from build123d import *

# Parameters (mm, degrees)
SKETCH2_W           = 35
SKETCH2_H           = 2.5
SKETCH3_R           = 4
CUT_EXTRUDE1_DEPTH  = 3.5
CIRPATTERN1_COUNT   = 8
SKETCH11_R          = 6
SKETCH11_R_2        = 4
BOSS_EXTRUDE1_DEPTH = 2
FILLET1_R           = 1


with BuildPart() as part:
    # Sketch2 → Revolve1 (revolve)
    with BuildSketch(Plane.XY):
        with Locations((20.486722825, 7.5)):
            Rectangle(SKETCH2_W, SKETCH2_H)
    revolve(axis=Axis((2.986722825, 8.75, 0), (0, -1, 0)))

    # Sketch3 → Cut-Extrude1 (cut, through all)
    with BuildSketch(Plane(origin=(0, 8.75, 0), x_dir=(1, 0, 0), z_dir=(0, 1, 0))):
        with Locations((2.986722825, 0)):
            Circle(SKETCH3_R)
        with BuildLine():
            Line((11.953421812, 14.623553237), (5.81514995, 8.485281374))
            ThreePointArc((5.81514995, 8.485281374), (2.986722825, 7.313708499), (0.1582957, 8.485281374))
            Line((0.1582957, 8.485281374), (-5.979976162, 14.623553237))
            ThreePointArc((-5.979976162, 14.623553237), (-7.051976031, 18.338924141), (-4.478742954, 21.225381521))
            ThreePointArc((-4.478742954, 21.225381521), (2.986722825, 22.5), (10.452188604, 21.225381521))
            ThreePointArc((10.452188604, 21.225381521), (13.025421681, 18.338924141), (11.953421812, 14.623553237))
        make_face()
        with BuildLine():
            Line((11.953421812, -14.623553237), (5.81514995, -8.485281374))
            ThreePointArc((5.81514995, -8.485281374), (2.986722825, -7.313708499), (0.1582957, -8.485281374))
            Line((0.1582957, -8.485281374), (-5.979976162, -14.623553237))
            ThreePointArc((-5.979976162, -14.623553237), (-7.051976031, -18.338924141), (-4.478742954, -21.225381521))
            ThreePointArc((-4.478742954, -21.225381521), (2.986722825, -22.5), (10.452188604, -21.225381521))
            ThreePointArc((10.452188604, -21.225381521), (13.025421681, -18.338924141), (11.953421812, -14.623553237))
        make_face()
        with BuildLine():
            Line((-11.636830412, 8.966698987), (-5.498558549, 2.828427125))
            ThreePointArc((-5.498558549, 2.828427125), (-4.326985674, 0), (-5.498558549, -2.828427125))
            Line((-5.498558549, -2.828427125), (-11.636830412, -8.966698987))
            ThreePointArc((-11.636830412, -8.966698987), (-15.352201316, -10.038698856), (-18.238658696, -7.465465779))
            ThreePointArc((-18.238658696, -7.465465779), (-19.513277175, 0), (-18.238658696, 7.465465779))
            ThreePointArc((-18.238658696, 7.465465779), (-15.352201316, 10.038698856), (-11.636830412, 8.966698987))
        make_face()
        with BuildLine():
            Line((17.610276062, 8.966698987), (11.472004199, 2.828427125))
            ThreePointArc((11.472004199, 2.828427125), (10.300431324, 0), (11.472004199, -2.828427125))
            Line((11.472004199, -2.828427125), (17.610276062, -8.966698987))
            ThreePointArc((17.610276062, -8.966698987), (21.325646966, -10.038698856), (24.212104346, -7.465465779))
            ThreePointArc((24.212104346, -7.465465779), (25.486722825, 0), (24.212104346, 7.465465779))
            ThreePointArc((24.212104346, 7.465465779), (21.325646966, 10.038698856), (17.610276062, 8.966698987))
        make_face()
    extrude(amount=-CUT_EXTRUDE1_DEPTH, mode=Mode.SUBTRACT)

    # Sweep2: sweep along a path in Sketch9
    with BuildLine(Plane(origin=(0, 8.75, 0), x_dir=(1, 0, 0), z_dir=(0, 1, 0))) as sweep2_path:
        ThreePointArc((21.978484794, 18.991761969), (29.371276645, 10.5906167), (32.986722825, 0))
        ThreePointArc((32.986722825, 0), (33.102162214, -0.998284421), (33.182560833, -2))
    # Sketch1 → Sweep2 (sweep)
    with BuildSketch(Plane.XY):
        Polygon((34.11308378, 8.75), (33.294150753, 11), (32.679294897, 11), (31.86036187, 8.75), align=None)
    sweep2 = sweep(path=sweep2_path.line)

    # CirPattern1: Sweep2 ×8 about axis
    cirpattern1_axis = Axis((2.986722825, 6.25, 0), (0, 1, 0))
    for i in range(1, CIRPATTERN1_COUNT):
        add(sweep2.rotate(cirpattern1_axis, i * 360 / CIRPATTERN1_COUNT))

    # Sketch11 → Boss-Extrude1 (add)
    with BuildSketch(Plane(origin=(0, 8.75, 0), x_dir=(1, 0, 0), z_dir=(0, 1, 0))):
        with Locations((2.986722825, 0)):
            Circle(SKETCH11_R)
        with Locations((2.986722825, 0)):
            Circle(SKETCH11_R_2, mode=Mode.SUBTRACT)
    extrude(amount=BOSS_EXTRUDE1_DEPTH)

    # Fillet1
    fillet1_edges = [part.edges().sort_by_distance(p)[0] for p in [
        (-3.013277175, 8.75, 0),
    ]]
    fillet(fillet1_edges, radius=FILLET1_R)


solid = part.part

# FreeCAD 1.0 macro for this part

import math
import FreeCAD as App
import Part
import Sketcher
Q = App.Units.Quantity


def edges_at(feature, points):
    """Names of the edges that pass closest to the given points."""
    edges = feature.Shape.Edges
    near = lambda p: min(range(len(edges)), key=lambda i: edges[i].distToShape(Part.Vertex(*p))[0])
    return sorted({f"Edge{near(p) + 1}" for p in points})


def add_polygon(sketch, points):
    """Adds a closed chain of lines whose ends are joined by coincident constraints."""
    first, n = sketch.GeometryCount, len(points)
    for a, b in zip(points, points[1:] + points[:1]):
        sketch.addGeometry(Part.LineSegment(App.Vector(*a, 0), App.Vector(*b, 0)), False)
    for i in range(n):
        sketch.addConstraint(Sketcher.Constraint("Coincident", first + i, 2, first + (i + 1) % n, 1))

doc = App.newDocument("Part")
body = doc.addObject("PartDesign::Body", "Body")

# Sketch on XY plane
sketch1 = body.newObject("Sketcher::SketchObject", "Sketch")
sketch1.AttachmentSupport = (doc.getObject("XY_Plane"), [""])
sketch1.MapMode = "FlatFace"
add_polygon(sketch1, [(3, 8.8), (3, 6.2), (38, 6.2), (38, 8.8)])  # lines 0-3
sketch1.addGeometry(Part.LineSegment(App.Vector(3, 8.8, 0), App.Vector(3, 6.2, 0)), True)  # axis
sketch1.addConstraint(Sketcher.Constraint("Vertical", 0))
sketch1.addConstraint(Sketcher.Constraint("Horizontal", 1))
sketch1.addConstraint(Sketcher.Constraint("Vertical", 2))
sketch1.addConstraint(Sketcher.Constraint("Horizontal", 3))
sketch1.addConstraint(Sketcher.Constraint("Vertical", 4))
sketch1.addConstraint(Sketcher.Constraint("Coincident", 4, 1, 3, 2))
sketch1.addConstraint(Sketcher.Constraint("Horizontal", 1, 2, 4, 2))
sketch1.addConstraint(Sketcher.Constraint("DistanceX", 1, 1, 1, 2, Q("35 mm")))
sketch1.addConstraint(Sketcher.Constraint("DistanceY", 0, 2, 0, 1, Q("2.5 mm")))
sketch1.addConstraint(Sketcher.Constraint("DistanceY", -1, 1, 0, 2, Q("6.25 mm")))
sketch1.addConstraint(Sketcher.Constraint("DistanceX", -1, 1, 0, 2, Q("2.986723 mm")))
revolution = body.newObject("PartDesign::Revolution", "Revolution")
revolution.Profile = sketch1
revolution.ReferenceAxis = (sketch1, ["Axis0"])
revolution.Angle = 360

# Sketch on XZ plane
sketch2 = body.newObject("Sketcher::SketchObject", "Sketch001")
sketch2.AttachmentSupport = (doc.getObject("XZ_Plane"), [""])
sketch2.MapMode = "FlatFace"
sketch2.AttachmentOffset = App.Placement(App.Vector(0, 0, -8.75), App.Rotation())
sketch2.addGeometry(Part.Circle(App.Vector(3, 0, 0), App.Vector(0, 0, 1), 4), False)
sketch2.addGeometry(Part.LineSegment(App.Vector(5.8, -8.5, 0), App.Vector(12, -14.6, 0)), False)
sketch2.addGeometry(Part.ArcOfCircle(Part.Circle(App.Vector(9.1, -17.5, 0), App.Vector(0, 0, 1), 4), math.radians(-71), math.radians(45)), False)
sketch2.addGeometry(Part.ArcOfCircle(Part.Circle(App.Vector(3, 0, 0), App.Vector(0, 0, 1), 22.5), math.radians(-109), math.radians(-71)), False)
sketch2.addGeometry(Part.ArcOfCircle(Part.Circle(App.Vector(-3.2, -17.5, 0), App.Vector(0, 0, 1), 4), math.radians(135), math.radians(251)), False)
sketch2.addGeometry(Part.LineSegment(App.Vector(-6, -14.6, 0), App.Vector(0.2, -8.5, 0)), False)
sketch2.addGeometry(Part.ArcOfCircle(Part.Circle(App.Vector(3, -11.3, 0), App.Vector(0, 0, 1), 4), math.radians(45), math.radians(135)), False)
sketch2.addGeometry(Part.LineSegment(App.Vector(12, 14.6, 0), App.Vector(5.8, 8.5, 0)), False)
sketch2.addGeometry(Part.ArcOfCircle(Part.Circle(App.Vector(3, 11.3, 0), App.Vector(0, 0, 1), 4), math.radians(-135), math.radians(-45)), False)
sketch2.addGeometry(Part.LineSegment(App.Vector(0.2, 8.5, 0), App.Vector(-6, 14.6, 0)), False)
sketch2.addGeometry(Part.ArcOfCircle(Part.Circle(App.Vector(-3.2, 17.5, 0), App.Vector(0, 0, 1), 4), math.radians(109), math.radians(225)), False)
sketch2.addGeometry(Part.ArcOfCircle(Part.Circle(App.Vector(3, 0, 0), App.Vector(0, 0, 1), 22.5), math.radians(71), math.radians(109)), False)
sketch2.addGeometry(Part.ArcOfCircle(Part.Circle(App.Vector(9.1, 17.5, 0), App.Vector(0, 0, 1), 4), math.radians(-45), math.radians(71)), False)
sketch2.addGeometry(Part.LineSegment(App.Vector(-5.5, -2.8, 0), App.Vector(-11.6, -9, 0)), False)
sketch2.addGeometry(Part.ArcOfCircle(Part.Circle(App.Vector(-14.5, -6.1, 0), App.Vector(0, 0, 1), 4), math.radians(-161), math.radians(-45)), False)
sketch2.addGeometry(Part.ArcOfCircle(Part.Circle(App.Vector(3, 0, 0), App.Vector(0, 0, 1), 22.5), math.radians(161), math.radians(199)), False)
sketch2.addGeometry(Part.ArcOfCircle(Part.Circle(App.Vector(-14.5, 6.1, 0), App.Vector(0, 0, 1), 4), math.radians(45), math.radians(161)), False)
sketch2.addGeometry(Part.LineSegment(App.Vector(-11.6, 9, 0), App.Vector(-5.5, 2.8, 0)), False)
sketch2.addGeometry(Part.ArcOfCircle(Part.Circle(App.Vector(-8.3, 0, 0), App.Vector(0, 0, 1), 4), math.radians(-45), math.radians(45)), False)
sketch2.addGeometry(Part.LineSegment(App.Vector(17.6, -9, 0), App.Vector(11.5, -2.8, 0)), False)
sketch2.addGeometry(Part.ArcOfCircle(Part.Circle(App.Vector(14.3, 0, 0), App.Vector(0, 0, 1), 4), math.radians(135), math.radians(225)), False)
sketch2.addGeometry(Part.LineSegment(App.Vector(11.5, 2.8, 0), App.Vector(17.6, 9, 0)), False)
sketch2.addGeometry(Part.ArcOfCircle(Part.Circle(App.Vector(20.4, 6.1, 0), App.Vector(0, 0, 1), 4), math.radians(19), math.radians(135)), False)
sketch2.addGeometry(Part.ArcOfCircle(Part.Circle(App.Vector(3, 0, 0), App.Vector(0, 0, 1), 22.5), math.radians(-19), math.radians(19)), False)
sketch2.addGeometry(Part.ArcOfCircle(Part.Circle(App.Vector(20.4, -6.1, 0), App.Vector(0, 0, 1), 4), math.radians(-135), math.radians(-19)), False)
sketch2.addConstraint(Sketcher.Constraint("Tangent", 1, 2, 2, 2))
sketch2.addConstraint(Sketcher.Constraint("Tangent", 2, 1, 3, 2))
sketch2.addConstraint(Sketcher.Constraint("Tangent", 3, 1, 4, 2))
sketch2.addConstraint(Sketcher.Constraint("Tangent", 4, 1, 5, 1))
sketch2.addConstraint(Sketcher.Constraint("Tangent", 5, 2, 6, 2))
sketch2.addConstraint(Sketcher.Constraint("Tangent", 6, 1, 1, 1))
sketch2.addConstraint(Sketcher.Constraint("Tangent", 7, 2, 8, 2))
sketch2.addConstraint(Sketcher.Constraint("Tangent", 8, 1, 9, 1))
sketch2.addConstraint(Sketcher.Constraint("Tangent", 9, 2, 10, 2))
sketch2.addConstraint(Sketcher.Constraint("Tangent", 10, 1, 11, 2))
sketch2.addConstraint(Sketcher.Constraint("Tangent", 11, 1, 12, 2))
sketch2.addConstraint(Sketcher.Constraint("Tangent", 12, 1, 7, 1))
sketch2.addConstraint(Sketcher.Constraint("Tangent", 13, 2, 14, 2))
sketch2.addConstraint(Sketcher.Constraint("Tangent", 14, 1, 15, 2))
sketch2.addConstraint(Sketcher.Constraint("Tangent", 15, 1, 16, 2))
sketch2.addConstraint(Sketcher.Constraint("Tangent", 16, 1, 17, 1))
sketch2.addConstraint(Sketcher.Constraint("Tangent", 17, 2, 18, 2))
sketch2.addConstraint(Sketcher.Constraint("Tangent", 18, 1, 13, 1))
sketch2.addConstraint(Sketcher.Constraint("Tangent", 19, 2, 20, 2))
sketch2.addConstraint(Sketcher.Constraint("Tangent", 20, 1, 21, 1))
sketch2.addConstraint(Sketcher.Constraint("Tangent", 21, 2, 22, 2))
sketch2.addConstraint(Sketcher.Constraint("Tangent", 22, 1, 23, 2))
sketch2.addConstraint(Sketcher.Constraint("Tangent", 23, 1, 24, 2))
sketch2.addConstraint(Sketcher.Constraint("Tangent", 24, 1, 19, 1))
sketch2.addConstraint(Sketcher.Constraint("Coincident", 3, 3, 0, 3))
sketch2.addConstraint(Sketcher.Constraint("Coincident", 11, 3, 0, 3))
sketch2.addConstraint(Sketcher.Constraint("Coincident", 15, 3, 0, 3))
sketch2.addConstraint(Sketcher.Constraint("Coincident", 23, 3, 0, 3))
sketch2.addConstraint(Sketcher.Constraint("Equal", 0, 2))
sketch2.addConstraint(Sketcher.Constraint("Equal", 2, 4))
sketch2.addConstraint(Sketcher.Constraint("Equal", 4, 6))
sketch2.addConstraint(Sketcher.Constraint("Equal", 6, 8))
sketch2.addConstraint(Sketcher.Constraint("Equal", 8, 10))
sketch2.addConstraint(Sketcher.Constraint("Equal", 3, 11))
sketch2.addConstraint(Sketcher.Constraint("Equal", 10, 12))
sketch2.addConstraint(Sketcher.Constraint("Equal", 12, 14))
sketch2.addConstraint(Sketcher.Constraint("Equal", 11, 15))
sketch2.addConstraint(Sketcher.Constraint("Equal", 14, 16))
sketch2.addConstraint(Sketcher.Constraint("Equal", 16, 18))
sketch2.addConstraint(Sketcher.Constraint("Equal", 18, 20))
sketch2.addConstraint(Sketcher.Constraint("Equal", 20, 22))
sketch2.addConstraint(Sketcher.Constraint("Equal", 15, 23))
sketch2.addConstraint(Sketcher.Constraint("Equal", 22, 24))
sketch2.addConstraint(Sketcher.Constraint("Symmetric", 6, 3, 8, 3, -1))
sketch2.addConstraint(Sketcher.Constraint("Symmetric", 4, 3, 10, 3, -1))
sketch2.addConstraint(Sketcher.Constraint("Symmetric", 13, 2, 16, 1, -1))
sketch2.addConstraint(Sketcher.Constraint("Symmetric", 19, 2, 20, 1, -1))
sketch2.addConstraint(Sketcher.Constraint("Perpendicular", 1, 5))
sketch2.addConstraint(Sketcher.Constraint("Parallel", 5, 7))
sketch2.addConstraint(Sketcher.Constraint("Perpendicular", 7, 9))
sketch2.addConstraint(Sketcher.Constraint("Perpendicular", 9, 13))
sketch2.addConstraint(Sketcher.Constraint("Parallel", 17, 19))
sketch2.addConstraint(Sketcher.Constraint("Horizontal", 2, 3, 4, 3))
sketch2.addConstraint(Sketcher.Constraint("Horizontal", 16, 3, 22, 3))
sketch2.addConstraint(Sketcher.Constraint("Equal", 9, 13))
sketch2.addConstraint(Sketcher.Constraint("Diameter", 0, Q("8 mm")))
sketch2.addConstraint(Sketcher.Constraint("Radius", 3, Q("22.5 mm")))
sketch2.addConstraint(Sketcher.Constraint("DistanceY", 13, 2, -1, 1, Q("8.966699 mm")))
sketch2.addConstraint(Sketcher.Constraint("DistanceX", 4, 3, -1, 1, Q("3.151549 mm")))
pocket1 = body.newObject("PartDesign::Pocket", "Pocket")
pocket1.Profile = sketch2
pocket1.Type = "ThroughAll"
pocket1.Reversed = True

# Sketch on XY plane
sketch3 = body.newObject("Sketcher::SketchObject", "Sketch002")
sketch3.AttachmentSupport = (doc.getObject("XY_Plane"), [""])
sketch3.MapMode = "FlatFace"
add_polygon(sketch3, [(34.1, 8.8), (33.3, 11), (32.7, 11), (31.9, 8.8)])  # lines 0-3
sketch3.addConstraint(Sketcher.Constraint("Horizontal", 1))
sketch3.addConstraint(Sketcher.Constraint("Horizontal", 3))
sketch3.addConstraint(Sketcher.Constraint("Equal", 0, 2))
sketch3.addConstraint(Sketcher.Constraint("Angle", 0, Q("110 deg")))
sketch3.addConstraint(Sketcher.Constraint("DistanceY", -1, 1, 0, 2, Q("11 mm")))
sketch3.addConstraint(Sketcher.Constraint("DistanceY", -1, 1, 2, 2, Q("8.75 mm")))
sketch3.addConstraint(Sketcher.Constraint("DistanceX", 3, 1, 3, 2, Q("2.252722 mm")))
sketch3.addConstraint(Sketcher.Constraint("DistanceX", -1, 1, 0, 2, Q("33.294151 mm")))

# Sketch on XZ plane
sketch4 = body.newObject("Sketcher::SketchObject", "Sketch003")
sketch4.AttachmentSupport = (doc.getObject("XZ_Plane"), [""])
sketch4.MapMode = "FlatFace"
sketch4.AttachmentOffset = App.Placement(App.Vector(0, 0, -8.75), App.Rotation())
sketch4.addGeometry(Part.ArcOfCircle(Part.Circle(App.Vector(4.6, 3.8, 0), App.Vector(0, 0, 1), 28.7), math.radians(-53), math.radians(-8)), False)
sketch4.addGeometry(Part.ArcOfCircle(Part.Circle(App.Vector(4.6, 3.8, 0), App.Vector(0, 0, 1), 28.7), math.radians(-7.6), math.radians(-3.59)), False)
sketch4.addConstraint(Sketcher.Constraint("Tangent", 0, 2, 1, 1))
sketch4.addConstraint(Sketcher.Constraint("Equal", 0, 1))
sketch4.addConstraint(Sketcher.Constraint("PointOnObject", 0, 2, -1))
sketch4.addConstraint(Sketcher.Constraint("DistanceY", -1, 1, 1, 2, Q("2 mm")))
sketch4.addConstraint(Sketcher.Constraint("Radius", 0, Q("28.683476 mm")))
sketch4.addConstraint(Sketcher.Constraint("DistanceY", 0, 1, -1, 1, Q("18.991762 mm")))
sketch4.addConstraint(Sketcher.Constraint("DistanceX", -1, 1, 1, 2, Q("33.182561 mm")))
sketch4.addConstraint(Sketcher.Constraint("DistanceX", 1, 3, 0, 1, Q("17.423268 mm")))
doc.recompute()

additivepipe = body.newObject("PartDesign::AdditivePipe", "AdditivePipe")
additivepipe.Profile = sketch3
additivepipe.Spine = (sketch4, ["Edge1", "Edge2"])
doc.recompute()

datumline = body.newObject("PartDesign::Line", "DatumLine")
datumline.Placement = App.Placement(App.Vector(2.986723, 0, 0), App.Rotation(App.Vector(0, 0, 1), App.Vector(0, 1, 0)))
polarpattern = body.newObject("PartDesign::PolarPattern", "PolarPattern")
polarpattern.Originals = [additivepipe]
polarpattern.Axis = (datumline, [""])
polarpattern.Angle = 360
polarpattern.Occurrences = 8
body.Tip = polarpattern

# Sketch on XZ plane
sketch5 = body.newObject("Sketcher::SketchObject", "Sketch004")
sketch5.AttachmentSupport = (doc.getObject("XZ_Plane"), [""])
sketch5.MapMode = "FlatFace"
sketch5.AttachmentOffset = App.Placement(App.Vector(0, 0, -8.75), App.Rotation())
sketch5.addGeometry(Part.Circle(App.Vector(3, 0, 0), App.Vector(0, 0, 1), 6), False)
sketch5.addGeometry(Part.Circle(App.Vector(3, 0, 0), App.Vector(0, 0, 1), 4), False)
sketch5.addConstraint(Sketcher.Constraint("Coincident", 1, 3, 0, 3))
sketch5.addConstraint(Sketcher.Constraint("PointOnObject", 0, 3, -1))
sketch5.addConstraint(Sketcher.Constraint("Diameter", 0, Q("12 mm")))
sketch5.addConstraint(Sketcher.Constraint("Diameter", 1, Q("8 mm")))
sketch5.addConstraint(Sketcher.Constraint("DistanceX", -1, 1, 0, 3, Q("2.986723 mm")))
pad1 = body.newObject("PartDesign::Pad", "Pad")
pad1.Profile = sketch5
pad1.Length = 2
pad1.Reversed = True
doc.recompute()

fillet = body.newObject("PartDesign::Fillet", "Fillet")
fillet.Base = (pad1, edges_at(pad1, [(-3.013, 8.75, 0)]))
fillet.Radius = 1

doc.recompute()
